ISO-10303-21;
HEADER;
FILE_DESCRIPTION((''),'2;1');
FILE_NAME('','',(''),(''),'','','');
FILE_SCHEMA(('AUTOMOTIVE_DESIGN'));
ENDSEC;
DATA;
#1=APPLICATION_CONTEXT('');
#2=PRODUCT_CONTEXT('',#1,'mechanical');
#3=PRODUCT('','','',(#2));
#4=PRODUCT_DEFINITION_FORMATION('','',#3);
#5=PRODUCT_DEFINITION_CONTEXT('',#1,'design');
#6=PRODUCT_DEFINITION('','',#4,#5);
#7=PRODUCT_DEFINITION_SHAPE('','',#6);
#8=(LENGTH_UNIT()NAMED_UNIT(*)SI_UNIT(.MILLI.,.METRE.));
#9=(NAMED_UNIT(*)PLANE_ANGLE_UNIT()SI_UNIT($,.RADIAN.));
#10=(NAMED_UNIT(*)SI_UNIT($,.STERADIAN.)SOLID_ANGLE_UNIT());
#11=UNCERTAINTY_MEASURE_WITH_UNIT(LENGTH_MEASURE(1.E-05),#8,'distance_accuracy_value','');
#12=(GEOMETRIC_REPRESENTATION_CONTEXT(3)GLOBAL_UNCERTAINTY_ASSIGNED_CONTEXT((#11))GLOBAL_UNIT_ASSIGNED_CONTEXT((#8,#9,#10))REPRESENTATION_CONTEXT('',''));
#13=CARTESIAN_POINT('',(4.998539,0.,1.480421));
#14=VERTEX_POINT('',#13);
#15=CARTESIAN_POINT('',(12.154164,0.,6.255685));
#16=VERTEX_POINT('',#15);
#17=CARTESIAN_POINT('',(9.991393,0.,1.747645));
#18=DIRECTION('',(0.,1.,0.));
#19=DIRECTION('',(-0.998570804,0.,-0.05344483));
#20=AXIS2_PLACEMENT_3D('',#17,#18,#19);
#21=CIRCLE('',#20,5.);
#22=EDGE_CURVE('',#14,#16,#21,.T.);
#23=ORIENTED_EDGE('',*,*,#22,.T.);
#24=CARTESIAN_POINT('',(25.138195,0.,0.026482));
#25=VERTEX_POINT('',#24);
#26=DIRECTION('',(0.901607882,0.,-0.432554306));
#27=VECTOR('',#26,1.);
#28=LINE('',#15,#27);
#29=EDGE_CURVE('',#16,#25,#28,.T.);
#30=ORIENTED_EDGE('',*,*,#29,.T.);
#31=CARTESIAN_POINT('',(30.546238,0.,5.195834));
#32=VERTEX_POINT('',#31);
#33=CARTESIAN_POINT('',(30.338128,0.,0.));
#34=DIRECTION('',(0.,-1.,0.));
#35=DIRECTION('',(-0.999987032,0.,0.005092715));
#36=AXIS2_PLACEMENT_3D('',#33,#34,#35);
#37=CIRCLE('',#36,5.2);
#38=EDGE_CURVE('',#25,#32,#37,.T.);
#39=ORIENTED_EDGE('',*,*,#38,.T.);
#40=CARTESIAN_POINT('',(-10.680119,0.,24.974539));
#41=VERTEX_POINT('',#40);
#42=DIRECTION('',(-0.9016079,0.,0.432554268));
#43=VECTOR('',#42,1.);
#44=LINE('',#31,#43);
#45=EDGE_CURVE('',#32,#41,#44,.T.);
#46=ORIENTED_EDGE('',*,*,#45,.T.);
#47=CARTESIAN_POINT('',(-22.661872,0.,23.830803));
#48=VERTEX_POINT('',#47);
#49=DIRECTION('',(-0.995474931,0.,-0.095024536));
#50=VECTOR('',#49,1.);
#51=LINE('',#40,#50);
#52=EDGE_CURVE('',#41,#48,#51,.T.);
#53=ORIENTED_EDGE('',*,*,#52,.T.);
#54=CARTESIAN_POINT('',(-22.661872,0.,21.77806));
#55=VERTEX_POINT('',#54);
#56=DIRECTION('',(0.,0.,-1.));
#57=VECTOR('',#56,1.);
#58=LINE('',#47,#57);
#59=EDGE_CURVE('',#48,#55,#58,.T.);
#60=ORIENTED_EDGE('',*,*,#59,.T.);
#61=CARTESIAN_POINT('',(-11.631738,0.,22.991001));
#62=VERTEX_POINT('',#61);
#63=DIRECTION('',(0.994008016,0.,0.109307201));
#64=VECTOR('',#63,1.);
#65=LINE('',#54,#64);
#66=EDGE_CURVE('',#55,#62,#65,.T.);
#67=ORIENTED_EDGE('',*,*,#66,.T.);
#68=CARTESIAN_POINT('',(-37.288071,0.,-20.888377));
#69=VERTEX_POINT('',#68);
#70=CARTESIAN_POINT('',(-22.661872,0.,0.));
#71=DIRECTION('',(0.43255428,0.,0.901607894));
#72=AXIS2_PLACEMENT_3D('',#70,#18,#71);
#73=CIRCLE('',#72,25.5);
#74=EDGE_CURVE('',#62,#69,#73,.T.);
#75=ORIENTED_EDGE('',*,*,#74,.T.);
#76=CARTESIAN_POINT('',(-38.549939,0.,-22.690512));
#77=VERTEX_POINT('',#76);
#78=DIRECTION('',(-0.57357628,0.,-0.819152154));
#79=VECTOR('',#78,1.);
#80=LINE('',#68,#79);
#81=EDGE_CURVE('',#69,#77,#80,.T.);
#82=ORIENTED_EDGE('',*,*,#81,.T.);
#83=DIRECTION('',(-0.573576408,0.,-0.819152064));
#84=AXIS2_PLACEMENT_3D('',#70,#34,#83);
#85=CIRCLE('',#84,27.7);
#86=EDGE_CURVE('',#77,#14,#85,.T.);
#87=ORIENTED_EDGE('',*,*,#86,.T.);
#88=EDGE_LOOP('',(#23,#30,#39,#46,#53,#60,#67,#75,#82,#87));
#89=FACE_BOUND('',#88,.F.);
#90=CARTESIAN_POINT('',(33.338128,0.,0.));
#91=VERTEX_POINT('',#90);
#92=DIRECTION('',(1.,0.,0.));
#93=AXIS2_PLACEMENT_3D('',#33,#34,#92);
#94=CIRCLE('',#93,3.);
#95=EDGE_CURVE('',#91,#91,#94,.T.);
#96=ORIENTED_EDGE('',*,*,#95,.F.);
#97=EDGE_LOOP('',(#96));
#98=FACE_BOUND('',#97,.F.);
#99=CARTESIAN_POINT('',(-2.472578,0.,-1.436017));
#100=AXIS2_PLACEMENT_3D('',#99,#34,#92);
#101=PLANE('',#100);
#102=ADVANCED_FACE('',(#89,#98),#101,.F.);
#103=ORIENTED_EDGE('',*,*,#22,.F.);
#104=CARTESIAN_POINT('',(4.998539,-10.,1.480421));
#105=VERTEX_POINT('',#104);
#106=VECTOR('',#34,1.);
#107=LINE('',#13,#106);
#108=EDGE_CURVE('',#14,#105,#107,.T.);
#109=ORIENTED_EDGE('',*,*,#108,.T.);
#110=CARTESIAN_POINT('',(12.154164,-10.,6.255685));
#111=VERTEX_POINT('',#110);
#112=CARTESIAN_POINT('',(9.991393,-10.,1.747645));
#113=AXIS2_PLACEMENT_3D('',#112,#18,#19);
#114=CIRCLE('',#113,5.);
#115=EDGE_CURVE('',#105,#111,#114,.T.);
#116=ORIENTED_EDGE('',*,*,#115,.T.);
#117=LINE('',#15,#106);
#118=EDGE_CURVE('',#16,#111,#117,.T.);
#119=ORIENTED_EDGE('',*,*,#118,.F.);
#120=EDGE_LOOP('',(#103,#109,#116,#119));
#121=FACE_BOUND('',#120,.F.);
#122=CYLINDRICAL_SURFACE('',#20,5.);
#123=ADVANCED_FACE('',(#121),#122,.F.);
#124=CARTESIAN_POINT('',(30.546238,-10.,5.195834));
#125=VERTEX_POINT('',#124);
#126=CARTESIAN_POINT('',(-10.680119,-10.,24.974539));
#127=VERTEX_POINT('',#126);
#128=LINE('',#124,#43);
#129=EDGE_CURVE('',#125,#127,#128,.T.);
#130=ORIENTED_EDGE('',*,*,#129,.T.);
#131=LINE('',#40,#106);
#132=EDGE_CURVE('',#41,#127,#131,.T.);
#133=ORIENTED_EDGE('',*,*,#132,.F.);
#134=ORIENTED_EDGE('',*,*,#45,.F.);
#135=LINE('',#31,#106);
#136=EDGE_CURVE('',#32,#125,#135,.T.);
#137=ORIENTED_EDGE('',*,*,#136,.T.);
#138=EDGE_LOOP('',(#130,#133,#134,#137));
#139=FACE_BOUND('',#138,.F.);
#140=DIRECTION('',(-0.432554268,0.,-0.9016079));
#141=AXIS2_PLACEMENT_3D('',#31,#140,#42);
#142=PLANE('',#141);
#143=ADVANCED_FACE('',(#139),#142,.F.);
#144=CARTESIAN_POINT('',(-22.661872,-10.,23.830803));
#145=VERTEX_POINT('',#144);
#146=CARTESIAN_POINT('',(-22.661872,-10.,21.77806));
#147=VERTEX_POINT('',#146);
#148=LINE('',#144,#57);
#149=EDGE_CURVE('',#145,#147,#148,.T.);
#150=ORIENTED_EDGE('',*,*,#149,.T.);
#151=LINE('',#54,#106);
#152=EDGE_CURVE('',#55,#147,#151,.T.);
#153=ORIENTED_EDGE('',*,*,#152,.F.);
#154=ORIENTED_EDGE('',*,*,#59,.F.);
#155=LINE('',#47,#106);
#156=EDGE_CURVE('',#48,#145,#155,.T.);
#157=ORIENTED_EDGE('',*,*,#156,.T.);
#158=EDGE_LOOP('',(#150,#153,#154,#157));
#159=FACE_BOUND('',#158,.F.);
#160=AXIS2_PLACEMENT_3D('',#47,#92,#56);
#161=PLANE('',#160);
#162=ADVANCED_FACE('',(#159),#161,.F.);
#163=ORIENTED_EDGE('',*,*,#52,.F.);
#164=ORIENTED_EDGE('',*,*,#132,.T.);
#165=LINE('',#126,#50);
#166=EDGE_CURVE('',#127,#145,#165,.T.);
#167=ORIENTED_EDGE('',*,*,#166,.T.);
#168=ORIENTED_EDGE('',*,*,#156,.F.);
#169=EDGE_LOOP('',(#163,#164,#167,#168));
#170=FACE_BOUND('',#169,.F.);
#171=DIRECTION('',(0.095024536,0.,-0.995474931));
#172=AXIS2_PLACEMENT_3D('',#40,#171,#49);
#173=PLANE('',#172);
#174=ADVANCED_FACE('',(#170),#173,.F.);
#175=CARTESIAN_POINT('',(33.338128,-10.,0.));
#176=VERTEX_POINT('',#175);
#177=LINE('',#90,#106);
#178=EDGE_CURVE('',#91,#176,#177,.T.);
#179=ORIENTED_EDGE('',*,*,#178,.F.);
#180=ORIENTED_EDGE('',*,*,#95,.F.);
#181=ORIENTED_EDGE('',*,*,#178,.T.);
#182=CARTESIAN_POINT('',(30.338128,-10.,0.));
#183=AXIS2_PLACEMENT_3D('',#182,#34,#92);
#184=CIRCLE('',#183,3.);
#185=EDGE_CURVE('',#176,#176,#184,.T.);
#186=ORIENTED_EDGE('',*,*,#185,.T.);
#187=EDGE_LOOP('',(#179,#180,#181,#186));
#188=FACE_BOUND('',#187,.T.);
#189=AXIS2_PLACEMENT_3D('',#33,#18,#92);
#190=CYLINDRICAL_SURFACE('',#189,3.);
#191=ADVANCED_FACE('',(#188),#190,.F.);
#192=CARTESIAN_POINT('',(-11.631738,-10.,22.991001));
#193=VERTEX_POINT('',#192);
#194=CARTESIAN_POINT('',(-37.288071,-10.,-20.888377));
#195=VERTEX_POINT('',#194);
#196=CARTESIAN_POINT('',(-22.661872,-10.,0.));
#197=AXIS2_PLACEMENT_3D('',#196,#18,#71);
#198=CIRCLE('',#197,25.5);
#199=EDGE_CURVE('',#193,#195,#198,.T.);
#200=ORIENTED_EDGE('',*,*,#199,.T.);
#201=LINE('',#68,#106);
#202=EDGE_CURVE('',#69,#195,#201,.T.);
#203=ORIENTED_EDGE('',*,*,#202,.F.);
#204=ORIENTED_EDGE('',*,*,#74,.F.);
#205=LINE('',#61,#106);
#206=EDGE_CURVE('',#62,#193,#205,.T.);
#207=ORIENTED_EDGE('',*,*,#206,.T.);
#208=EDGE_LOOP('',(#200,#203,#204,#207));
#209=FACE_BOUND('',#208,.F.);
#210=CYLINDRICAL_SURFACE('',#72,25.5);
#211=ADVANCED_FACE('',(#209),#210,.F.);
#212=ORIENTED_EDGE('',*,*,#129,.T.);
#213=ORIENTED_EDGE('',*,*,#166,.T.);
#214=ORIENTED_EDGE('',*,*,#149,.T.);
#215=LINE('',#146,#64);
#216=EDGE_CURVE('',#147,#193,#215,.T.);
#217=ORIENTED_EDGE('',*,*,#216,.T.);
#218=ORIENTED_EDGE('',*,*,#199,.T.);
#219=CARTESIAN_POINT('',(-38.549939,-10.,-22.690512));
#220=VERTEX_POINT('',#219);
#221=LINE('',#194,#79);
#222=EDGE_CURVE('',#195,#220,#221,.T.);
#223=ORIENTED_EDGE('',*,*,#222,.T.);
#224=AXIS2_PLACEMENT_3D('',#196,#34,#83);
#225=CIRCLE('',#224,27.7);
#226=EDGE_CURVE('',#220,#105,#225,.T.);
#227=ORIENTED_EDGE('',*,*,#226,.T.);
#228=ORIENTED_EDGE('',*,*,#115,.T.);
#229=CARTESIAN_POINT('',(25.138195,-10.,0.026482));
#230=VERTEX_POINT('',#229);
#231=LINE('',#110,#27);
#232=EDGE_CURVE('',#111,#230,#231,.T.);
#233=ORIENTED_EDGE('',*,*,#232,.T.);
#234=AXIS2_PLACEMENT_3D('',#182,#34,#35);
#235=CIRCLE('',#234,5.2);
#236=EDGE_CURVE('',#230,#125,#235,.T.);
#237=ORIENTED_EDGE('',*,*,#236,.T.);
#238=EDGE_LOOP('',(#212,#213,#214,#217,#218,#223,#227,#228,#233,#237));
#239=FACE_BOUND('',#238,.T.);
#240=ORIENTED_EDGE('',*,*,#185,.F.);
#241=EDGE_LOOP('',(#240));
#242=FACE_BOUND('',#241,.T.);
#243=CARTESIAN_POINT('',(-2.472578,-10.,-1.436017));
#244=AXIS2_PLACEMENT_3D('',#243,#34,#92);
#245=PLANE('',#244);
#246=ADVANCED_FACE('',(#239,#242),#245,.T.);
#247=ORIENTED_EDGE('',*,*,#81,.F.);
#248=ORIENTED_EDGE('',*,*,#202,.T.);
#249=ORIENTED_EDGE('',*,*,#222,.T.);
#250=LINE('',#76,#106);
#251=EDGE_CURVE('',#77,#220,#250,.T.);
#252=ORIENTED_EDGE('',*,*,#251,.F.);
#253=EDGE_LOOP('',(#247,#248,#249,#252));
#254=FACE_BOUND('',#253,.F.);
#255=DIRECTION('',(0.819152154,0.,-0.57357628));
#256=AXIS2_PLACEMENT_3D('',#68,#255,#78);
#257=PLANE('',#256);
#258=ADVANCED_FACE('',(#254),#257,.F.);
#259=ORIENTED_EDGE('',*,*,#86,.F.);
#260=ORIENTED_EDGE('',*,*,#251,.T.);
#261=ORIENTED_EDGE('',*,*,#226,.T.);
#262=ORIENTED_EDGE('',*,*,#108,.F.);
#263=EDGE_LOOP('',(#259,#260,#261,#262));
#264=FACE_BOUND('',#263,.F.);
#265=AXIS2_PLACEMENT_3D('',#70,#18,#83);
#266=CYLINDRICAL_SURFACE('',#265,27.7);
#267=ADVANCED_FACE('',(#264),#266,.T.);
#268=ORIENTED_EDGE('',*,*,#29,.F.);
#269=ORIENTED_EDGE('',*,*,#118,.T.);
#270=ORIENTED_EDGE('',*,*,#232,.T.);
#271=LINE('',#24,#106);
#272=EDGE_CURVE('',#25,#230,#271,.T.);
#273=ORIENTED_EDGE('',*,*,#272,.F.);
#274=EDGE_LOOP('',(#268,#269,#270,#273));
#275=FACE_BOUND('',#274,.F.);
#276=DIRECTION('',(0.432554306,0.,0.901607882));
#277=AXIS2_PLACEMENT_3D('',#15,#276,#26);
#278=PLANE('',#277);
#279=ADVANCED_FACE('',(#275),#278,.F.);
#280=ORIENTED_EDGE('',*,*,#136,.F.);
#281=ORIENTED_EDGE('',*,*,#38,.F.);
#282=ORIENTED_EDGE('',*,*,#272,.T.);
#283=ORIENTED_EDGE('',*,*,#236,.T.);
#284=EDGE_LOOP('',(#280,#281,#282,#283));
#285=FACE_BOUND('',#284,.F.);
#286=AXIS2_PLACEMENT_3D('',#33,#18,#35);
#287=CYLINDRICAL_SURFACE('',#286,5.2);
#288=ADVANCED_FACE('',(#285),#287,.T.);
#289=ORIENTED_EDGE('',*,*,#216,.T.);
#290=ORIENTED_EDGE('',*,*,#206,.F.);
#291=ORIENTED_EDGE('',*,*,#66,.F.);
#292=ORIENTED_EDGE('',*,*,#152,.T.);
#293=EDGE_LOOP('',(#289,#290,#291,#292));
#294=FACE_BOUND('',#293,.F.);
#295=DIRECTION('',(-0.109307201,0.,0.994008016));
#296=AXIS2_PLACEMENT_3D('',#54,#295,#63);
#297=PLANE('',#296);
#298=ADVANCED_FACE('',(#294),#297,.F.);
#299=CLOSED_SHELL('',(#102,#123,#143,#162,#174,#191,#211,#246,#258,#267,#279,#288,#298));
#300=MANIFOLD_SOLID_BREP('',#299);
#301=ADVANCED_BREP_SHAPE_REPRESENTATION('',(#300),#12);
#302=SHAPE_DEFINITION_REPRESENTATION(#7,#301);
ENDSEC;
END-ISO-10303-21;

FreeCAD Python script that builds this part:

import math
import FreeCAD as App
import Part
import Sketcher

V = App.Vector
Q = App.Units.Quantity

doc = App.newDocument("Part")
body = doc.addObject("PartDesign::Body", "Body")

# Sketch on XZ plane
sketch1 = body.newObject("Sketcher::SketchObject", "Sketch")
sketch1.AttachmentSupport = (doc.getObject("XZ_Plane"), [""])
sketch1.MapMode = "FlatFace"
sketch1.addGeometry([
    Part.ArcOfCircle(Part.Circle(V(-22.661872, 0, 0), V(0, 0, 1), 25.5), math.radians(-125), math.radians(64.370229)),  # 0
    Part.LineSegment(V(-37.288071, -20.888377, 0), V(-38.549939, -22.690512, 0)),  # 1
    Part.ArcOfCircle(Part.Circle(V(-22.661872, 0, 0), V(0, 0, 1), 27.7), math.radians(-124.999998), math.radians(3.063621)),  # 2
    Part.ArcOfCircle(Part.Circle(V(9.991393, 1.747645, 0), V(0, 0, 1), 5), math.radians(64.370237), math.radians(183.063623)),  # 3
    Part.LineSegment(V(12.154164, 6.255685, 0), V(25.138195, 0.026482, 0)),  # 4
    Part.ArcOfCircle(Part.Circle(V(30.338128, 0, 0), V(0, 0, 1), 5.2), math.radians(179.708208), math.radians(447.706342)),  # 5
    Part.LineSegment(V(30.546238, 5.195834, 0), V(-10.680119, 24.974539, 0)),  # 6
    Part.LineSegment(V(-10.680119, 24.974539, 0), V(-22.661872, 23.830803, 0)),  # 7
    Part.LineSegment(V(-22.661872, 23.830803, 0), V(-22.661872, 21.77806, 0)),  # 8
    Part.LineSegment(V(-22.661872, 21.77806, 0), V(-11.631738, 22.991001, 0)),  # 9
    Part.Circle(V(30.338128, 0, 0), V(0, 0, 1), 3),  # 10
], False)
sketch1.addConstraint([
    Sketcher.Constraint("Coincident", 0, 1, 1, 1),
    Sketcher.Constraint("Coincident", 1, 2, 2, 1),
    Sketcher.Constraint("Tangent", 2, 2, 3, 2),
    Sketcher.Constraint("Tangent", 3, 1, 4, 1),
    Sketcher.Constraint("Coincident", 4, 2, 5, 1),
    Sketcher.Constraint("Coincident", 5, 2, 6, 1),
    Sketcher.Constraint("Coincident", 6, 2, 7, 1),
    Sketcher.Constraint("Coincident", 7, 2, 8, 1),
    Sketcher.Constraint("Coincident", 8, 2, 9, 1),
    Sketcher.Constraint("Coincident", 9, 2, 0, 2),
    Sketcher.Constraint("Vertical", 8),
    Sketcher.Constraint("Coincident", 2, 3, 0, 3),
    Sketcher.Constraint("Coincident", 10, 3, 5, 3),
    Sketcher.Constraint("PointOnObject", 0, 3, -1),
    Sketcher.Constraint("PointOnObject", 5, 3, -1),
    Sketcher.Constraint("Parallel", 4, 6),
    Sketcher.Constraint("Vertical", 2, 3, 7, 2),
    Sketcher.Constraint("Diameter", 10, Q("6 mm")),
    Sketcher.Constraint("Radius", 3, Q("5 mm")),
    Sketcher.Constraint("Radius", 0, Q("25.5 mm")),
    Sketcher.Constraint("Radius", 2, Q("27.7 mm")),
    Sketcher.Constraint("Radius", 5, Q("5.2 mm")),
    Sketcher.Constraint("Angle", 1, Q("-124.999989 deg")),
    Sketcher.Constraint("DistanceX", 0, 3, 5, 3, Q("53 mm")),
    Sketcher.Constraint("DistanceY", -1, 1, 9, 2, Q("22.991001 mm")),
    Sketcher.Constraint("DistanceX", 0, 1, 0, 3, Q("14.626199 mm")),
    Sketcher.Constraint("DistanceX", 3, 3, 4, 2, Q("15.146802 mm")),
    Sketcher.Constraint("DistanceY", 9, 2, 7, 2, Q("0.839802 mm")),
    Sketcher.Constraint("DistanceY", 8, 2, 8, 1, Q("2.052743 mm")),
    Sketcher.Constraint("DistanceX", -1, 1, 10, 3, Q("30.338128 mm")),
    Sketcher.Constraint("DistanceY", -1, 1, 4, 2, Q("0.026482 mm")),
    Sketcher.Constraint("DistanceX", 6, 2, -1, 1, Q("10.680119 mm")),
    Sketcher.Constraint("DistanceY", -1, 1, 6, 2, Q("24.974539 mm")),
])
pad1 = body.newObject("PartDesign::Pad", "Pad")
pad1.Profile = sketch1
pad1.Length = 10

doc.recompute()
